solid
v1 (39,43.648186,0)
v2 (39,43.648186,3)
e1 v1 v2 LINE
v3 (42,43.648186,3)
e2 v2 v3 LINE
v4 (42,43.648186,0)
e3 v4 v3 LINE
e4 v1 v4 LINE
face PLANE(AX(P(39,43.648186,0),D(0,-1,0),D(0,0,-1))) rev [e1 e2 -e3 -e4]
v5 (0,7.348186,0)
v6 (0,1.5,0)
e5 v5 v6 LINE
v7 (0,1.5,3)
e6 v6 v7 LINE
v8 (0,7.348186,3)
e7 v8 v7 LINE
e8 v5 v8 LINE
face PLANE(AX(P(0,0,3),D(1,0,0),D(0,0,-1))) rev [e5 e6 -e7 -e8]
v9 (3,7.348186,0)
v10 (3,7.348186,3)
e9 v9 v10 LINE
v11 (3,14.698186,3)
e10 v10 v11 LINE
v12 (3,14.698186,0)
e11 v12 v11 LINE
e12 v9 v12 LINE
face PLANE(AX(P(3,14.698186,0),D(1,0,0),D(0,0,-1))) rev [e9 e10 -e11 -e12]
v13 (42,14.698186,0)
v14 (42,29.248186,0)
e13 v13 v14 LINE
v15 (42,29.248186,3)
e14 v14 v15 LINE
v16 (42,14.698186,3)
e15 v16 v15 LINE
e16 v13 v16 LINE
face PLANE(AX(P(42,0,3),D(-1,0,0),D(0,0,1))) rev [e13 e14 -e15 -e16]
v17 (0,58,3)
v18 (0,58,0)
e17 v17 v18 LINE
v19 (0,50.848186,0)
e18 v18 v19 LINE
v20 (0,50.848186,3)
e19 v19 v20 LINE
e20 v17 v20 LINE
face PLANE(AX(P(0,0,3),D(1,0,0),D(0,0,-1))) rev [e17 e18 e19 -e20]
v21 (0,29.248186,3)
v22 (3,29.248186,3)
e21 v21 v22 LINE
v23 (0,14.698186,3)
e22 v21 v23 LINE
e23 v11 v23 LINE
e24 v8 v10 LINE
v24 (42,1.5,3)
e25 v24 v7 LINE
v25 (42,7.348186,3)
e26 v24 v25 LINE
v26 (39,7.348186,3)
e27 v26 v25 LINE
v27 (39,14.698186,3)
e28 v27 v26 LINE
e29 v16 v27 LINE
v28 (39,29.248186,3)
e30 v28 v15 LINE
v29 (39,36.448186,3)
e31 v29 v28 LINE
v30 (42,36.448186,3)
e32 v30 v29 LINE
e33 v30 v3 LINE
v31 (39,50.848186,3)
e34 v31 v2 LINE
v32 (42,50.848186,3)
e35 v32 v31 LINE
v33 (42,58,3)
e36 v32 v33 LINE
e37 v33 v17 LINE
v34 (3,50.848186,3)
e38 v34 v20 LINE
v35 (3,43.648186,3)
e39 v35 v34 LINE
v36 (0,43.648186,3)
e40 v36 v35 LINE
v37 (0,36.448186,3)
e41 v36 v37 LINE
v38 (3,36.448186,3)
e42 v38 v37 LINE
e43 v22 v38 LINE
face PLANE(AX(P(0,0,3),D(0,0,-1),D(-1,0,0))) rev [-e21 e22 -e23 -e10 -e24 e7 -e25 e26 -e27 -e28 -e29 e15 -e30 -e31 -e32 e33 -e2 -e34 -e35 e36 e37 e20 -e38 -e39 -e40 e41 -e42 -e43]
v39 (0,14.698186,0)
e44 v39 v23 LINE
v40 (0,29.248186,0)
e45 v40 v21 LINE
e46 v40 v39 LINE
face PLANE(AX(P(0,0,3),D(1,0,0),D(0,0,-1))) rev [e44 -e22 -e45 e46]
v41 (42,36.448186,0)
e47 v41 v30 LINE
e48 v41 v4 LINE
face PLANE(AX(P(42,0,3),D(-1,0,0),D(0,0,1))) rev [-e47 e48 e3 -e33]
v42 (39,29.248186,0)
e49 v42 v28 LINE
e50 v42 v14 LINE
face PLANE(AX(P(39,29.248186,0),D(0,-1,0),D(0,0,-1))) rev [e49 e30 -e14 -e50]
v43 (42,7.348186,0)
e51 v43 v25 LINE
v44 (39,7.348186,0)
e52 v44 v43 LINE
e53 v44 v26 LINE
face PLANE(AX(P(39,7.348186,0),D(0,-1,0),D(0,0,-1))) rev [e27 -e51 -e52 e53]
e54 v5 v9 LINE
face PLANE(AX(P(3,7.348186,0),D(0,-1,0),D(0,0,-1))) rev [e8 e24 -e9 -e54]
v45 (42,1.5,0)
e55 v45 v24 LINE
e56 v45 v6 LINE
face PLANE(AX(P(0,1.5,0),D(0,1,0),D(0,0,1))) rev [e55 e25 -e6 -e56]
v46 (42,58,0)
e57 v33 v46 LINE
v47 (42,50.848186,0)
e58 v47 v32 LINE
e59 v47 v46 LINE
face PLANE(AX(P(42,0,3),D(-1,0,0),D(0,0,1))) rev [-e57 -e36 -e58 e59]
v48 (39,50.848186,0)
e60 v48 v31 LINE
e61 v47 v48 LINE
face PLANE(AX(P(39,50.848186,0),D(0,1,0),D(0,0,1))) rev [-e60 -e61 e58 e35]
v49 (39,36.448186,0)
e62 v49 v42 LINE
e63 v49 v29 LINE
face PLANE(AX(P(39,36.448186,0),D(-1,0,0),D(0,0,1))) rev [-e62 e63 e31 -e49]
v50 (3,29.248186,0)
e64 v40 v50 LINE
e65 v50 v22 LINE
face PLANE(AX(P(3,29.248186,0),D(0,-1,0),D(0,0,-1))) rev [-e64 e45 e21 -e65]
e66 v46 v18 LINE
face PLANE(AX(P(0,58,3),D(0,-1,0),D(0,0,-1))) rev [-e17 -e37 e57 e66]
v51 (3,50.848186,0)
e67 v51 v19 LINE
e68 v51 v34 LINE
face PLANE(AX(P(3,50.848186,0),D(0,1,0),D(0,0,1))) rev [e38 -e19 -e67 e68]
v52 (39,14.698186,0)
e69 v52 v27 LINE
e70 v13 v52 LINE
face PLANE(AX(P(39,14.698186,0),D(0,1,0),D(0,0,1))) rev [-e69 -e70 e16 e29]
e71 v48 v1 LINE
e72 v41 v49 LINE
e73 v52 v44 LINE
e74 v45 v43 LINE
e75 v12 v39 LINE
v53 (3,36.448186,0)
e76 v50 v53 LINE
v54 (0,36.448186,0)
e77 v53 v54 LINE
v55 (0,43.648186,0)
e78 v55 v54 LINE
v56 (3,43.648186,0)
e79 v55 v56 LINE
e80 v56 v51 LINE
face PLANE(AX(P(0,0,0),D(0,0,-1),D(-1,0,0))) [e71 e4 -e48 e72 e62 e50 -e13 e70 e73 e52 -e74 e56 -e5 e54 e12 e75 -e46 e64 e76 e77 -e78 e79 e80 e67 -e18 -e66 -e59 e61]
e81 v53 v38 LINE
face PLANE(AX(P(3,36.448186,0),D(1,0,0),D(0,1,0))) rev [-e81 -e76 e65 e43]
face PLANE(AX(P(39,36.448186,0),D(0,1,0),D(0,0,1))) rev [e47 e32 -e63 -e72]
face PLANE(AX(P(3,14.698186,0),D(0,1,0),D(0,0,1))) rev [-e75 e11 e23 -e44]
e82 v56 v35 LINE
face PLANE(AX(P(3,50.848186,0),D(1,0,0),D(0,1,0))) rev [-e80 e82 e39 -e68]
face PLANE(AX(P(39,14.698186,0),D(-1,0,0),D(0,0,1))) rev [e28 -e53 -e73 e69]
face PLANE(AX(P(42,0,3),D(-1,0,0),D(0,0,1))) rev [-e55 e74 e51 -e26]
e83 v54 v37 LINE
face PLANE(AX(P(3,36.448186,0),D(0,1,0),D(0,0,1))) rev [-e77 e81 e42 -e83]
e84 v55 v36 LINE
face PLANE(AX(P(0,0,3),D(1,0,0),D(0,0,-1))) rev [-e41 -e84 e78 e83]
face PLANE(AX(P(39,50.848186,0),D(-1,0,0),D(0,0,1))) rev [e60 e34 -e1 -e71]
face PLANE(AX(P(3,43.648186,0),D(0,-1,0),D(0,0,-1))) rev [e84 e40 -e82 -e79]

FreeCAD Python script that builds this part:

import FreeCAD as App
import Part
import Sketcher
Q = App.Units.Quantity

doc = App.newDocument("Part")
body = doc.addObject("PartDesign::Body", "Body")

sketch1 = doc.addObject("Sketcher::SketchObject", "Sketch")
body.addObject(sketch1)
sketch1.AttachmentSupport = (doc.XY_Plane, [""])
sketch1.MapMode = "FlatFace"
sketch1.addGeometry([
    Part.LineSegment(App.Vector(0, 58, 0), App.Vector(0, 0, 0)),
    Part.LineSegment(App.Vector(0, 0, 0), App.Vector(42, 0, 0)),
    Part.LineSegment(App.Vector(42, 0, 0), App.Vector(42, 58, 0)),
    Part.LineSegment(App.Vector(42, 58, 0), App.Vector(0, 58, 0)),
], False)
sketch1.addConstraint([
    Sketcher.Constraint("Coincident", 0, 2, 1, 1),
    Sketcher.Constraint("Coincident", 1, 2, 2, 1),
    Sketcher.Constraint("Coincident", 2, 2, 3, 1),
    Sketcher.Constraint("Coincident", 3, 2, 0, 1),
    Sketcher.Constraint("Vertical", 0),
    Sketcher.Constraint("Horizontal", 1),
    Sketcher.Constraint("Vertical", 2),
    Sketcher.Constraint("Horizontal", 3),
    Sketcher.Constraint("Coincident", 0, 2, -1, 1),
    Sketcher.Constraint("DistanceX", 1, 1, 1, 2, Q("42 mm")),
    Sketcher.Constraint("DistanceY", 0, 2, 0, 1, Q("58 mm")),
])
pad1 = doc.addObject("PartDesign::Pad", "Pad")
body.addObject(pad1)
pad1.Profile = sketch1
pad1.Length = 3

sketch2 = doc.addObject("Sketcher::SketchObject", "Sketch001")
body.addObject(sketch2)
sketch2.AttachmentSupport = (doc.XY_Plane, [""])
sketch2.MapMode = "FlatFace"
sketch2.AttachmentOffset = App.Placement(App.Vector(0, 0, 3), App.Rotation())
sketch2.addGeometry([
    Part.LineSegment(App.Vector(39, 50.848186, 0), App.Vector(39, 43.648186, 0)),
    Part.LineSegment(App.Vector(39, 43.648186, 0), App.Vector(42, 43.648186, 0)),
    Part.LineSegment(App.Vector(42, 43.648186, 0), App.Vector(42, 50.848186, 0)),
    Part.LineSegment(App.Vector(42, 50.848186, 0), App.Vector(39, 50.848186, 0)),
    Part.LineSegment(App.Vector(39, 36.448186, 0), App.Vector(39, 29.248186, 0)),
    Part.LineSegment(App.Vector(39, 29.248186, 0), App.Vector(42, 29.248186, 0)),
    Part.LineSegment(App.Vector(42, 29.248186, 0), App.Vector(42, 36.448186, 0)),
    Part.LineSegment(App.Vector(42, 36.448186, 0), App.Vector(39, 36.448186, 0)),
    Part.LineSegment(App.Vector(0, 50.848186, 0), App.Vector(0, 43.648186, 0)),
    Part.LineSegment(App.Vector(0, 43.648186, 0), App.Vector(3, 43.648186, 0)),
    Part.LineSegment(App.Vector(3, 43.648186, 0), App.Vector(3, 50.848186, 0)),
    Part.LineSegment(App.Vector(3, 50.848186, 0), App.Vector(0, 50.848186, 0)),
    Part.LineSegment(App.Vector(0, 36.448186, 0), App.Vector(0, 29.248186, 0)),
    Part.LineSegment(App.Vector(0, 29.248186, 0), App.Vector(3, 29.248186, 0)),
    Part.LineSegment(App.Vector(3, 29.248186, 0), App.Vector(3, 36.448186, 0)),
    Part.LineSegment(App.Vector(3, 36.448186, 0), App.Vector(0, 36.448186, 0)),
    Part.LineSegment(App.Vector(0, 14.698186, 0), App.Vector(0, 7.348186, 0)),
    Part.LineSegment(App.Vector(0, 7.348186, 0), App.Vector(3, 7.348186, 0)),
    Part.LineSegment(App.Vector(3, 7.348186, 0), App.Vector(3, 14.698186, 0)),
    Part.LineSegment(App.Vector(3, 14.698186, 0), App.Vector(0, 14.698186, 0)),
    Part.LineSegment(App.Vector(39, 14.698186, 0), App.Vector(39, 7.348186, 0)),
    Part.LineSegment(App.Vector(39, 7.348186, 0), App.Vector(42, 7.348186, 0)),
    Part.LineSegment(App.Vector(42, 7.348186, 0), App.Vector(42, 14.698186, 0)),
    Part.LineSegment(App.Vector(42, 14.698186, 0), App.Vector(39, 14.698186, 0)),
], False)
sketch2.addConstraint([
    Sketcher.Constraint("Coincident", 0, 2, 1, 1),
    Sketcher.Constraint("Coincident", 1, 2, 2, 1),
    Sketcher.Constraint("Coincident", 2, 2, 3, 1),
    Sketcher.Constraint("Coincident", 3, 2, 0, 1),
    Sketcher.Constraint("Coincident", 4, 2, 5, 1),
    Sketcher.Constraint("Coincident", 5, 2, 6, 1),
    Sketcher.Constraint("Coincident", 6, 2, 7, 1),
    Sketcher.Constraint("Coincident", 7, 2, 4, 1),
    Sketcher.Constraint("Coincident", 8, 2, 9, 1),
    Sketcher.Constraint("Coincident", 9, 2, 10, 1),
    Sketcher.Constraint("Coincident", 10, 2, 11, 1),
    Sketcher.Constraint("Coincident", 11, 2, 8, 1),
    Sketcher.Constraint("Coincident", 12, 2, 13, 1),
    Sketcher.Constraint("Coincident", 13, 2, 14, 1),
    Sketcher.Constraint("Coincident", 14, 2, 15, 1),
    Sketcher.Constraint("Coincident", 15, 2, 12, 1),
    Sketcher.Constraint("Coincident", 16, 2, 17, 1),
    Sketcher.Constraint("Coincident", 17, 2, 18, 1),
    Sketcher.Constraint("Coincident", 18, 2, 19, 1),
    Sketcher.Constraint("Coincident", 19, 2, 16, 1),
    Sketcher.Constraint("Coincident", 20, 2, 21, 1),
    Sketcher.Constraint("Coincident", 21, 2, 22, 1),
    Sketcher.Constraint("Coincident", 22, 2, 23, 1),
    Sketcher.Constraint("Coincident", 23, 2, 20, 1),
    Sketcher.Constraint("Vertical", 0),
    Sketcher.Constraint("Horizontal", 1),
    Sketcher.Constraint("Vertical", 2),
    Sketcher.Constraint("Horizontal", 3),
    Sketcher.Constraint("Vertical", 4),
    Sketcher.Constraint("Horizontal", 5),
    Sketcher.Constraint("Vertical", 6),
    Sketcher.Constraint("Horizontal", 7),
    Sketcher.Constraint("Vertical", 8),
    Sketcher.Constraint("Horizontal", 9),
    Sketcher.Constraint("Vertical", 10),
    Sketcher.Constraint("Horizontal", 11),
    Sketcher.Constraint("Vertical", 12),
    Sketcher.Constraint("Horizontal", 13),
    Sketcher.Constraint("Vertical", 14),
    Sketcher.Constraint("Horizontal", 15),
    Sketcher.Constraint("Vertical", 16),
    Sketcher.Constraint("Horizontal", 17),
    Sketcher.Constraint("Vertical", 18),
    Sketcher.Constraint("Horizontal", 19),
    Sketcher.Constraint("Vertical", 20),
    Sketcher.Constraint("Horizontal", 21),
    Sketcher.Constraint("Vertical", 22),
    Sketcher.Constraint("Horizontal", 23),
    Sketcher.Constraint("PointOnObject", 8, 2, -2),
    Sketcher.Constraint("PointOnObject", 12, 2, -2),
    Sketcher.Constraint("PointOnObject", 16, 2, -2),
    Sketcher.Constraint("Horizontal", 1, 2, 8, 2),
    Sketcher.Constraint("Horizontal", 3, 2, 10, 2),
    Sketcher.Constraint("Horizontal", 5, 2, 12, 2),
    Sketcher.Constraint("Horizontal", 7, 2, 14, 2),
    Sketcher.Constraint("Horizontal", 17, 2, 20, 2),
    Sketcher.Constraint("Horizontal", 19, 2, 22, 2),
    Sketcher.Constraint("Vertical", 3, 2, 4, 2),
    Sketcher.Constraint("Vertical", 2, 2, 5, 2),
    Sketcher.Constraint("Vertical", 10, 2, 13, 2),
    Sketcher.Constraint("Vertical", 14, 2, 17, 2),
    Sketcher.Constraint("Vertical", 7, 2, 20, 2),
    Sketcher.Constraint("Vertical", 6, 2, 21, 2),
    Sketcher.Constraint("Equal", 7, 9),
    Sketcher.Constraint("Equal", 2, 4),
    Sketcher.Constraint("DistanceX", 1, 1, 1, 2, Q("3 mm")),
    Sketcher.Constraint("DistanceY", 0, 2, 0, 1, Q("7.2 mm")),
    Sketcher.Constraint("DistanceX", -1, 1, 0, 2, Q("39 mm")),
    Sketcher.Constraint("DistanceY", 16, 2, 16, 1, Q("7.35 mm")),
    Sketcher.Constraint("DistanceY", 4, 2, 0, 2, Q("14.4 mm")),
    Sketcher.Constraint("DistanceY", 16, 2, 12, 2, Q("21.9 mm")),
    Sketcher.Constraint("DistanceY", -1, 1, 0, 2, Q("43.648186 mm")),
])
pocket1 = doc.addObject("PartDesign::Pocket", "Pocket")
body.addObject(pocket1)
pocket1.Profile = sketch2
pocket1.Length = 3

sketch3 = doc.addObject("Sketcher::SketchObject", "Sketch002")
body.addObject(sketch3)
sketch3.AttachmentSupport = (doc.XY_Plane, [""])
sketch3.MapMode = "FlatFace"
sketch3.AttachmentOffset = App.Placement(App.Vector(0, 0, 3), App.Rotation())
sketch3.addGeometry([
    Part.LineSegment(App.Vector(0, 1.5, 0), App.Vector(0, 0, 0)),
    Part.LineSegment(App.Vector(0, 0, 0), App.Vector(42, 0, 0)),
    Part.LineSegment(App.Vector(42, 0, 0), App.Vector(42, 1.5, 0)),
    Part.LineSegment(App.Vector(42, 1.5, 0), App.Vector(0, 1.5, 0)),
], False)
sketch3.addConstraint([
    Sketcher.Constraint("Coincident", 0, 2, 1, 1),
    Sketcher.Constraint("Coincident", 1, 2, 2, 1),
    Sketcher.Constraint("Coincident", 2, 2, 3, 1),
    Sketcher.Constraint("Coincident", 3, 2, 0, 1),
    Sketcher.Constraint("Vertical", 0),
    Sketcher.Constraint("Horizontal", 1),
    Sketcher.Constraint("Vertical", 2),
    Sketcher.Constraint("Horizontal", 3),
    Sketcher.Constraint("Coincident", 0, 2, -1, 1),
    Sketcher.Constraint("DistanceX", 1, 1, 1, 2, Q("42 mm")),
    Sketcher.Constraint("DistanceY", 0, 2, 0, 1, Q("1.5 mm")),
])
pocket2 = doc.addObject("PartDesign::Pocket", "Pocket001")
body.addObject(pocket2)
pocket2.Profile = sketch3
pocket2.Type = "ThroughAll"

doc.recompute()
